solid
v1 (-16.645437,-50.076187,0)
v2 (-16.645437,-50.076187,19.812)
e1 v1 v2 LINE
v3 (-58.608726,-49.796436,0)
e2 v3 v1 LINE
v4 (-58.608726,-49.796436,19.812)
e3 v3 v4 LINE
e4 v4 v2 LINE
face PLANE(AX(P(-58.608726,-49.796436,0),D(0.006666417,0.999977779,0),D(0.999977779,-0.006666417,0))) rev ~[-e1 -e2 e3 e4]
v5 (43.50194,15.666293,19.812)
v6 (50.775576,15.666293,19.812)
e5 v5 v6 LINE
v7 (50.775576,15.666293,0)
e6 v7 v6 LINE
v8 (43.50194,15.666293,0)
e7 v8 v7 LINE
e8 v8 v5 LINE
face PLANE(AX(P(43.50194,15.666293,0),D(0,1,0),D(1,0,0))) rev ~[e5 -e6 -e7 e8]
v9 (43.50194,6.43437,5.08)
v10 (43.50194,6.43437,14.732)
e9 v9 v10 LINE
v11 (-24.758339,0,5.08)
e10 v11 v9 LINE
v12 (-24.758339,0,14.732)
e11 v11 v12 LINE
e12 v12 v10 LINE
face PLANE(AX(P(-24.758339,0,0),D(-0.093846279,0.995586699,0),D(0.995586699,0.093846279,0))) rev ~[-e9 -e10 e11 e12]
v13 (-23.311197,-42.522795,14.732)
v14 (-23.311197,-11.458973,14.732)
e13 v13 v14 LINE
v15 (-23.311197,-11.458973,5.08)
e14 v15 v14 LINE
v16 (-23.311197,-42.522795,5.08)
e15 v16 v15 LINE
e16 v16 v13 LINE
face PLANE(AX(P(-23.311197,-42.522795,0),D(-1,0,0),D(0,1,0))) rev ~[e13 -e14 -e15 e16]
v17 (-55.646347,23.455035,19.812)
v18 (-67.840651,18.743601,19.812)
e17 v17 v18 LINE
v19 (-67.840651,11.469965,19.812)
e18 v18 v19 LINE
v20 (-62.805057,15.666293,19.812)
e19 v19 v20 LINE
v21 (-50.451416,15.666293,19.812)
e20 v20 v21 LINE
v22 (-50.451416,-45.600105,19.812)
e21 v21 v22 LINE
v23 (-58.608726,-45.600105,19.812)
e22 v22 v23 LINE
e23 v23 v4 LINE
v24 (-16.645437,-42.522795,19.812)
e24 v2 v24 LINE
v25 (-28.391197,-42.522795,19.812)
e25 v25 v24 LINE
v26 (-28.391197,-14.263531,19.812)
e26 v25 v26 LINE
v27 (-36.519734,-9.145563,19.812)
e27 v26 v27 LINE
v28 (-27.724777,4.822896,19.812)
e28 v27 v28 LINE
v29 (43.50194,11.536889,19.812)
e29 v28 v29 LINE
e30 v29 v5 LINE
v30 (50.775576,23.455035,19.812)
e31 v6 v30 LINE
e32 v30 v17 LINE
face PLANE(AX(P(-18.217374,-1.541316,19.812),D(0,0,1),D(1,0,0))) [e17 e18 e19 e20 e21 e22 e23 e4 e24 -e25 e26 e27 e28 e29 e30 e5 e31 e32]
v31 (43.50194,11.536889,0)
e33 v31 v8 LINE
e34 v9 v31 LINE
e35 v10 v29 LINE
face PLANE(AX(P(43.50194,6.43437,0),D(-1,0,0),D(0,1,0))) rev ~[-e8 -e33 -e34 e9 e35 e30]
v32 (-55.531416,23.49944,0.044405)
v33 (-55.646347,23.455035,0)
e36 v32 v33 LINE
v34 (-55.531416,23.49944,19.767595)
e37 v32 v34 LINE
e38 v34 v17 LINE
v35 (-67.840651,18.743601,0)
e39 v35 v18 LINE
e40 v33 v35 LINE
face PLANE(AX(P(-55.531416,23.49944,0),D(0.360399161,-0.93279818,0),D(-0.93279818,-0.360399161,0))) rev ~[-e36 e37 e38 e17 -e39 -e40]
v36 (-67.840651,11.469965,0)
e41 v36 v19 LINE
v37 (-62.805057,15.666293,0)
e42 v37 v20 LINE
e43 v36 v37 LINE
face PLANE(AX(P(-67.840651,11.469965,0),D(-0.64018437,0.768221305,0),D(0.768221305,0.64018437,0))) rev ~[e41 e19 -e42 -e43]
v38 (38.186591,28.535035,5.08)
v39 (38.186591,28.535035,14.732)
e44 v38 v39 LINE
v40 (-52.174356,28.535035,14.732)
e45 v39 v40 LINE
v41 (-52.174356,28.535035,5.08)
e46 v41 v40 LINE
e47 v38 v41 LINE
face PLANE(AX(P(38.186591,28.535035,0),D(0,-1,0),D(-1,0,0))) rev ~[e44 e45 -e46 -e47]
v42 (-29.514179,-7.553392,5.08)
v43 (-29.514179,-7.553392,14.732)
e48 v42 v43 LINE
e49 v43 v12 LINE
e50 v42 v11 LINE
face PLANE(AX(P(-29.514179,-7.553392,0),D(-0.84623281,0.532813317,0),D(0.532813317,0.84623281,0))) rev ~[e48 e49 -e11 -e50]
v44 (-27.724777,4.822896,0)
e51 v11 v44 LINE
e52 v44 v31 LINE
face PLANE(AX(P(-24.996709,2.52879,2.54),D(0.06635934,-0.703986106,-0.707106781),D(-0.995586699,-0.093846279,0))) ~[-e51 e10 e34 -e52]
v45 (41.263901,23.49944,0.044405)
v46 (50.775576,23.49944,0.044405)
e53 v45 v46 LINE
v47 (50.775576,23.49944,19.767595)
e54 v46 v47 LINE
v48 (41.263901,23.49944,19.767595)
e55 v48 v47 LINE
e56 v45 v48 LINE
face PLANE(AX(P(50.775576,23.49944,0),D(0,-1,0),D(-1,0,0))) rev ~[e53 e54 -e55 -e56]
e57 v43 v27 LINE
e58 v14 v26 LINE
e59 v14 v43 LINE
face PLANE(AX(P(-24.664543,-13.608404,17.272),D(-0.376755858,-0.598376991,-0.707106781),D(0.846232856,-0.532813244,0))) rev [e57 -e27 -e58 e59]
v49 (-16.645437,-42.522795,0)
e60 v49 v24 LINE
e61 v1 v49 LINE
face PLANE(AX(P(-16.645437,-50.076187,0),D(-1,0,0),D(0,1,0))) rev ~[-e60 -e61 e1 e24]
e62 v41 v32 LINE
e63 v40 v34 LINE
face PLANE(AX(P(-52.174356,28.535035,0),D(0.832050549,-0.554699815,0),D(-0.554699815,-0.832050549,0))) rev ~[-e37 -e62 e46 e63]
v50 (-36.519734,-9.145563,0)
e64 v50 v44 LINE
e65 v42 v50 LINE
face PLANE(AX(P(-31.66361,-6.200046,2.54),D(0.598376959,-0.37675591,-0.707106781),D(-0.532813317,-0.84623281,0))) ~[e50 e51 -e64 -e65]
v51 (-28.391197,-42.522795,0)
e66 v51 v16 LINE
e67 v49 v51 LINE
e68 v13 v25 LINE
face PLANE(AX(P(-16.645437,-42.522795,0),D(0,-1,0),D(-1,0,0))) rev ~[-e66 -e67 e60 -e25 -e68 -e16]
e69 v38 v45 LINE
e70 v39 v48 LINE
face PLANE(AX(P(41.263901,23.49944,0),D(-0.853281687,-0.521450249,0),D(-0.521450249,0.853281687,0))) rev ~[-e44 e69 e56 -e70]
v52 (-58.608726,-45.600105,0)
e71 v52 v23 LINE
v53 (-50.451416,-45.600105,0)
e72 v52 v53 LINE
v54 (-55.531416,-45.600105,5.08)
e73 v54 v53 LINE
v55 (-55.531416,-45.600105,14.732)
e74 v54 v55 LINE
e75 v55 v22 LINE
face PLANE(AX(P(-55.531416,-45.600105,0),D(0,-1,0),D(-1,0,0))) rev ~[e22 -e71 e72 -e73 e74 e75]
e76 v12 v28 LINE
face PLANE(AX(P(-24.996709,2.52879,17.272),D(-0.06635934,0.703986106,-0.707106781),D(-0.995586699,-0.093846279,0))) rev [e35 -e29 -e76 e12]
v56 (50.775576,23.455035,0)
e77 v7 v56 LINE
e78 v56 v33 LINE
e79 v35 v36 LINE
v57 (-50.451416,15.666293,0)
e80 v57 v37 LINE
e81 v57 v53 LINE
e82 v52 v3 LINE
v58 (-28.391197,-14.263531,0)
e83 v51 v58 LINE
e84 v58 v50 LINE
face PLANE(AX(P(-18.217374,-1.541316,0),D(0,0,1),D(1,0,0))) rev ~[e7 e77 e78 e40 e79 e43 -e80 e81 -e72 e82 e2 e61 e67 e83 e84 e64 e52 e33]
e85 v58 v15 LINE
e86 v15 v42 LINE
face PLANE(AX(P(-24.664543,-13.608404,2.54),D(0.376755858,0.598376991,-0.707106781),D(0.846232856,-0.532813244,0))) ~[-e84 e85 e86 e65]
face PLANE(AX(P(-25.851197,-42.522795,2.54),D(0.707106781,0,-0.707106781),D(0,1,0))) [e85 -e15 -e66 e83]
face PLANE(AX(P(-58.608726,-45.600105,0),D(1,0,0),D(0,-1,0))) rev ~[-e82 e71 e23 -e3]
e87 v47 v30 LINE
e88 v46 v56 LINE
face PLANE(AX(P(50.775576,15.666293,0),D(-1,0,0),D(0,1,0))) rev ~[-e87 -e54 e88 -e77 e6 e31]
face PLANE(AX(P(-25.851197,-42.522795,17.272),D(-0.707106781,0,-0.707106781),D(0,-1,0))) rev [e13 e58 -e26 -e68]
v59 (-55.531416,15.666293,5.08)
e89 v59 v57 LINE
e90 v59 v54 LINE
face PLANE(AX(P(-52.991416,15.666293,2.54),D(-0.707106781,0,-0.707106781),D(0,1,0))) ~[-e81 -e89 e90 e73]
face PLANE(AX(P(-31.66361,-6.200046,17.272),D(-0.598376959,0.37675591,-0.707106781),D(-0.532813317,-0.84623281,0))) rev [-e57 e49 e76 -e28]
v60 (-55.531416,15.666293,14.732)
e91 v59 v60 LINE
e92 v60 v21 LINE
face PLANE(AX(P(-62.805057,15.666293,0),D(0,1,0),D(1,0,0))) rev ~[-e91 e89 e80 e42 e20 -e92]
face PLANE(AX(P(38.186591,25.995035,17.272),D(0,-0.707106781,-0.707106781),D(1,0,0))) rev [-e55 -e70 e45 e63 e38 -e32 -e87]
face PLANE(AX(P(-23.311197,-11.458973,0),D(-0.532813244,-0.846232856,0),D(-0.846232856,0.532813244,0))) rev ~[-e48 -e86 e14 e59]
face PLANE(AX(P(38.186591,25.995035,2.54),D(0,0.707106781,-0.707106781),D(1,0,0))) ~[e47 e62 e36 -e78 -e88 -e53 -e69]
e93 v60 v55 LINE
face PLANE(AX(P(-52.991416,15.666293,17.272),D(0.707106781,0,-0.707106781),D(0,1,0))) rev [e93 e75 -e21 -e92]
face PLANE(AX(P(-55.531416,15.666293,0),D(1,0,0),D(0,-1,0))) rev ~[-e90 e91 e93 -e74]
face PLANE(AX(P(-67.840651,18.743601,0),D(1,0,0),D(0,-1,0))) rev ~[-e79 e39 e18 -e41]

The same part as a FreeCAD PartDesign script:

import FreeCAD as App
import Part
import Sketcher


def edges_at(feature, points):
    """Names of the edges that pass closest to the given points."""
    edges = feature.Shape.Edges
    near = lambda p: min(range(len(edges)), key=lambda i: edges[i].distToShape(Part.Vertex(*p))[0])
    return sorted({f"Edge{near(p) + 1}" for p in points})


def add_polygon(sketch, points):
    """Adds a closed chain of lines whose ends are joined by coincident constraints."""
    first, n = sketch.GeometryCount, len(points)
    for a, b in zip(points, points[1:] + points[:1]):
        sketch.addGeometry(Part.LineSegment(App.Vector(*a, 0), App.Vector(*b, 0)), False)
    for i in range(n):
        sketch.addConstraint(Sketcher.Constraint("Coincident", first + i, 2, first + (i + 1) % n, 1))

doc = App.newDocument("Part")
params = doc.addObject("Spreadsheet::Sheet", "Params")
for row, (alias, value) in enumerate([
    ("pad1_length", "0.78 in"),
    ("chamfer_size", "0.2 in"),
    ("chamfer2_size", "0.2 in"),
], start=1):
    params.set(f"A{row}", alias)
    params.set(f"B{row}", "=" + value)
    params.setAlias(f"B{row}", alias)

body = doc.addObject("PartDesign::Body", "Body")

# Sketch on XY plane
sketch1 = body.newObject("Sketcher::SketchObject", "Sketch")
sketch1.AttachmentSupport = (doc.getObject("XY_Plane"), [""])
sketch1.MapMode = "FlatFace"
add_polygon(sketch1, [(-58.6, -45.6), (-58.6, -49.8), (-16.6, -50.1), (-16.6, -42.5), (-23.3, -42.5), (-23.3, -11.5), (-29.5, -7.6), (-24.8, 0), (43.5, 6.4), (43.5, 15.7), (50.8, 15.7), (50.8, 23.5), (41.3, 23.5), (38.2, 28.5), (-52.2, 28.5), (-55.5, 23.5), (-67.8, 18.7), (-67.8, 11.5), (-62.8, 15.7), (-55.5, 15.7), (-55.5, -45.6)])  # lines 0-20
sketch1.addConstraint([
    Sketcher.Constraint("Vertical", 0),
    Sketcher.Constraint("Vertical", 2),
    Sketcher.Constraint("Horizontal", 3),
    Sketcher.Constraint("Vertical", 4),
    Sketcher.Constraint("Vertical", 8),
    Sketcher.Constraint("Horizontal", 9),
    Sketcher.Constraint("Vertical", 10),
    Sketcher.Constraint("Horizontal", 11),
    Sketcher.Constraint("Horizontal", 13),
    Sketcher.Constraint("Vertical", 16),
    Sketcher.Constraint("Horizontal", 18),
    Sketcher.Constraint("Vertical", 19),
    Sketcher.Constraint("Horizontal", 20),
    Sketcher.Constraint("PointOnObject", 6, 2, -1),
    Sketcher.Constraint("Perpendicular", 5, 6),
    Sketcher.Constraint("Horizontal", 11, 2, 14, 2),
    Sketcher.Constraint("Horizontal", 9, 2, 17, 2),
    Sketcher.Constraint("Vertical", 14, 2, 18, 2),
    Sketcher.Constraint("Equal", 9, 16),
    Sketcher.Constraint("DistanceX", 3, 2, 3, 1, 6.66576),
    Sketcher.Constraint("DistanceX", 18, 1, 18, 2, 7.273641),
    Sketcher.Constraint("DistanceX", 20, 2, 20, 1, 3.07731),
    Sketcher.Constraint("DistanceY", 0, 2, 0, 1, 4.196331),
    Sketcher.Constraint("DistanceY", 2, 1, 2, 2, 7.553392),
    Sketcher.Constraint("DistanceX", -1, 1, 11, 2, 41.263901),
    Sketcher.Constraint("DistanceY", -1, 1, 15, 2, 18.743601),
    Sketcher.Constraint("DistanceX", 6, 2, 2, 2, 8.112902),
    Sketcher.Constraint("DistanceX", 17, 2, 13, 2, 10.630701),
    Sketcher.Constraint("Distance", 1, 41.964221),
    Sketcher.Constraint("Distance", 14, 6.05203),
    Sketcher.Constraint("DistanceX", 9, 1, 9, 2, 7.273636),
    Sketcher.Constraint("DistanceX", 11, 2, 11, 1, 9.511675),
    Sketcher.Constraint("DistanceX", 13, 2, 13, 1, 90.360947),
    Sketcher.Constraint("DistanceY", 4, 1, 4, 2, 31.063822),
    Sketcher.Constraint("DistanceY", 8, 1, 8, 2, 9.231923),
    Sketcher.Constraint("DistanceY", 10, 1, 10, 2, 7.833147),
    Sketcher.Constraint("DistanceY", 19, 2, 19, 1, 61.266398),
    Sketcher.Constraint("DistanceX", 5, 2, -1, 1, 29.514179),
    Sketcher.Constraint("DistanceY", 5, 2, -1, 1, 7.553392),
    Sketcher.Constraint("DistanceX", 6, 2, -1, 1, 24.758339),
    Sketcher.Constraint("DistanceY", -1, 1, 7, 2, 6.43437),
    Sketcher.Constraint("DistanceX", 15, 2, -1, 1, 67.840651),
])
pad1 = body.newObject("PartDesign::Pad", "Pad")
pad1.Profile = sketch1
pad1.setExpression("Length", "Params.pad1_length")
doc.recompute()

chamfer = body.newObject("PartDesign::Chamfer", "Chamfer")
chamfer.Base = (pad1, edges_at(pad1, [
    (-6.994, 28.535, 19.812),
    (9.372, 3.217, 19.812),
    (-55.531, -14.967, 19.812),
    (-23.311, -26.991, 19.812),
    (-26.413, -9.506, 19.812),
    (-27.136, -3.777, 19.812),
]))
chamfer.setExpression("Size", "Params.chamfer_size")
doc.recompute()

chamfer2 = body.newObject("PartDesign::Chamfer", "Chamfer001")
chamfer2.Base = (chamfer, edges_at(chamfer, [
    (-55.531, -14.967, 0),
    (-6.994, 28.535, 0),
    (9.372, 3.217, 0),
    (-23.311, -26.991, 0),
    (-26.413, -9.506, 0),
    (-27.136, -3.777, 0),
]))
chamfer2.setExpression("Size", "Params.chamfer2_size")

doc.recompute()
